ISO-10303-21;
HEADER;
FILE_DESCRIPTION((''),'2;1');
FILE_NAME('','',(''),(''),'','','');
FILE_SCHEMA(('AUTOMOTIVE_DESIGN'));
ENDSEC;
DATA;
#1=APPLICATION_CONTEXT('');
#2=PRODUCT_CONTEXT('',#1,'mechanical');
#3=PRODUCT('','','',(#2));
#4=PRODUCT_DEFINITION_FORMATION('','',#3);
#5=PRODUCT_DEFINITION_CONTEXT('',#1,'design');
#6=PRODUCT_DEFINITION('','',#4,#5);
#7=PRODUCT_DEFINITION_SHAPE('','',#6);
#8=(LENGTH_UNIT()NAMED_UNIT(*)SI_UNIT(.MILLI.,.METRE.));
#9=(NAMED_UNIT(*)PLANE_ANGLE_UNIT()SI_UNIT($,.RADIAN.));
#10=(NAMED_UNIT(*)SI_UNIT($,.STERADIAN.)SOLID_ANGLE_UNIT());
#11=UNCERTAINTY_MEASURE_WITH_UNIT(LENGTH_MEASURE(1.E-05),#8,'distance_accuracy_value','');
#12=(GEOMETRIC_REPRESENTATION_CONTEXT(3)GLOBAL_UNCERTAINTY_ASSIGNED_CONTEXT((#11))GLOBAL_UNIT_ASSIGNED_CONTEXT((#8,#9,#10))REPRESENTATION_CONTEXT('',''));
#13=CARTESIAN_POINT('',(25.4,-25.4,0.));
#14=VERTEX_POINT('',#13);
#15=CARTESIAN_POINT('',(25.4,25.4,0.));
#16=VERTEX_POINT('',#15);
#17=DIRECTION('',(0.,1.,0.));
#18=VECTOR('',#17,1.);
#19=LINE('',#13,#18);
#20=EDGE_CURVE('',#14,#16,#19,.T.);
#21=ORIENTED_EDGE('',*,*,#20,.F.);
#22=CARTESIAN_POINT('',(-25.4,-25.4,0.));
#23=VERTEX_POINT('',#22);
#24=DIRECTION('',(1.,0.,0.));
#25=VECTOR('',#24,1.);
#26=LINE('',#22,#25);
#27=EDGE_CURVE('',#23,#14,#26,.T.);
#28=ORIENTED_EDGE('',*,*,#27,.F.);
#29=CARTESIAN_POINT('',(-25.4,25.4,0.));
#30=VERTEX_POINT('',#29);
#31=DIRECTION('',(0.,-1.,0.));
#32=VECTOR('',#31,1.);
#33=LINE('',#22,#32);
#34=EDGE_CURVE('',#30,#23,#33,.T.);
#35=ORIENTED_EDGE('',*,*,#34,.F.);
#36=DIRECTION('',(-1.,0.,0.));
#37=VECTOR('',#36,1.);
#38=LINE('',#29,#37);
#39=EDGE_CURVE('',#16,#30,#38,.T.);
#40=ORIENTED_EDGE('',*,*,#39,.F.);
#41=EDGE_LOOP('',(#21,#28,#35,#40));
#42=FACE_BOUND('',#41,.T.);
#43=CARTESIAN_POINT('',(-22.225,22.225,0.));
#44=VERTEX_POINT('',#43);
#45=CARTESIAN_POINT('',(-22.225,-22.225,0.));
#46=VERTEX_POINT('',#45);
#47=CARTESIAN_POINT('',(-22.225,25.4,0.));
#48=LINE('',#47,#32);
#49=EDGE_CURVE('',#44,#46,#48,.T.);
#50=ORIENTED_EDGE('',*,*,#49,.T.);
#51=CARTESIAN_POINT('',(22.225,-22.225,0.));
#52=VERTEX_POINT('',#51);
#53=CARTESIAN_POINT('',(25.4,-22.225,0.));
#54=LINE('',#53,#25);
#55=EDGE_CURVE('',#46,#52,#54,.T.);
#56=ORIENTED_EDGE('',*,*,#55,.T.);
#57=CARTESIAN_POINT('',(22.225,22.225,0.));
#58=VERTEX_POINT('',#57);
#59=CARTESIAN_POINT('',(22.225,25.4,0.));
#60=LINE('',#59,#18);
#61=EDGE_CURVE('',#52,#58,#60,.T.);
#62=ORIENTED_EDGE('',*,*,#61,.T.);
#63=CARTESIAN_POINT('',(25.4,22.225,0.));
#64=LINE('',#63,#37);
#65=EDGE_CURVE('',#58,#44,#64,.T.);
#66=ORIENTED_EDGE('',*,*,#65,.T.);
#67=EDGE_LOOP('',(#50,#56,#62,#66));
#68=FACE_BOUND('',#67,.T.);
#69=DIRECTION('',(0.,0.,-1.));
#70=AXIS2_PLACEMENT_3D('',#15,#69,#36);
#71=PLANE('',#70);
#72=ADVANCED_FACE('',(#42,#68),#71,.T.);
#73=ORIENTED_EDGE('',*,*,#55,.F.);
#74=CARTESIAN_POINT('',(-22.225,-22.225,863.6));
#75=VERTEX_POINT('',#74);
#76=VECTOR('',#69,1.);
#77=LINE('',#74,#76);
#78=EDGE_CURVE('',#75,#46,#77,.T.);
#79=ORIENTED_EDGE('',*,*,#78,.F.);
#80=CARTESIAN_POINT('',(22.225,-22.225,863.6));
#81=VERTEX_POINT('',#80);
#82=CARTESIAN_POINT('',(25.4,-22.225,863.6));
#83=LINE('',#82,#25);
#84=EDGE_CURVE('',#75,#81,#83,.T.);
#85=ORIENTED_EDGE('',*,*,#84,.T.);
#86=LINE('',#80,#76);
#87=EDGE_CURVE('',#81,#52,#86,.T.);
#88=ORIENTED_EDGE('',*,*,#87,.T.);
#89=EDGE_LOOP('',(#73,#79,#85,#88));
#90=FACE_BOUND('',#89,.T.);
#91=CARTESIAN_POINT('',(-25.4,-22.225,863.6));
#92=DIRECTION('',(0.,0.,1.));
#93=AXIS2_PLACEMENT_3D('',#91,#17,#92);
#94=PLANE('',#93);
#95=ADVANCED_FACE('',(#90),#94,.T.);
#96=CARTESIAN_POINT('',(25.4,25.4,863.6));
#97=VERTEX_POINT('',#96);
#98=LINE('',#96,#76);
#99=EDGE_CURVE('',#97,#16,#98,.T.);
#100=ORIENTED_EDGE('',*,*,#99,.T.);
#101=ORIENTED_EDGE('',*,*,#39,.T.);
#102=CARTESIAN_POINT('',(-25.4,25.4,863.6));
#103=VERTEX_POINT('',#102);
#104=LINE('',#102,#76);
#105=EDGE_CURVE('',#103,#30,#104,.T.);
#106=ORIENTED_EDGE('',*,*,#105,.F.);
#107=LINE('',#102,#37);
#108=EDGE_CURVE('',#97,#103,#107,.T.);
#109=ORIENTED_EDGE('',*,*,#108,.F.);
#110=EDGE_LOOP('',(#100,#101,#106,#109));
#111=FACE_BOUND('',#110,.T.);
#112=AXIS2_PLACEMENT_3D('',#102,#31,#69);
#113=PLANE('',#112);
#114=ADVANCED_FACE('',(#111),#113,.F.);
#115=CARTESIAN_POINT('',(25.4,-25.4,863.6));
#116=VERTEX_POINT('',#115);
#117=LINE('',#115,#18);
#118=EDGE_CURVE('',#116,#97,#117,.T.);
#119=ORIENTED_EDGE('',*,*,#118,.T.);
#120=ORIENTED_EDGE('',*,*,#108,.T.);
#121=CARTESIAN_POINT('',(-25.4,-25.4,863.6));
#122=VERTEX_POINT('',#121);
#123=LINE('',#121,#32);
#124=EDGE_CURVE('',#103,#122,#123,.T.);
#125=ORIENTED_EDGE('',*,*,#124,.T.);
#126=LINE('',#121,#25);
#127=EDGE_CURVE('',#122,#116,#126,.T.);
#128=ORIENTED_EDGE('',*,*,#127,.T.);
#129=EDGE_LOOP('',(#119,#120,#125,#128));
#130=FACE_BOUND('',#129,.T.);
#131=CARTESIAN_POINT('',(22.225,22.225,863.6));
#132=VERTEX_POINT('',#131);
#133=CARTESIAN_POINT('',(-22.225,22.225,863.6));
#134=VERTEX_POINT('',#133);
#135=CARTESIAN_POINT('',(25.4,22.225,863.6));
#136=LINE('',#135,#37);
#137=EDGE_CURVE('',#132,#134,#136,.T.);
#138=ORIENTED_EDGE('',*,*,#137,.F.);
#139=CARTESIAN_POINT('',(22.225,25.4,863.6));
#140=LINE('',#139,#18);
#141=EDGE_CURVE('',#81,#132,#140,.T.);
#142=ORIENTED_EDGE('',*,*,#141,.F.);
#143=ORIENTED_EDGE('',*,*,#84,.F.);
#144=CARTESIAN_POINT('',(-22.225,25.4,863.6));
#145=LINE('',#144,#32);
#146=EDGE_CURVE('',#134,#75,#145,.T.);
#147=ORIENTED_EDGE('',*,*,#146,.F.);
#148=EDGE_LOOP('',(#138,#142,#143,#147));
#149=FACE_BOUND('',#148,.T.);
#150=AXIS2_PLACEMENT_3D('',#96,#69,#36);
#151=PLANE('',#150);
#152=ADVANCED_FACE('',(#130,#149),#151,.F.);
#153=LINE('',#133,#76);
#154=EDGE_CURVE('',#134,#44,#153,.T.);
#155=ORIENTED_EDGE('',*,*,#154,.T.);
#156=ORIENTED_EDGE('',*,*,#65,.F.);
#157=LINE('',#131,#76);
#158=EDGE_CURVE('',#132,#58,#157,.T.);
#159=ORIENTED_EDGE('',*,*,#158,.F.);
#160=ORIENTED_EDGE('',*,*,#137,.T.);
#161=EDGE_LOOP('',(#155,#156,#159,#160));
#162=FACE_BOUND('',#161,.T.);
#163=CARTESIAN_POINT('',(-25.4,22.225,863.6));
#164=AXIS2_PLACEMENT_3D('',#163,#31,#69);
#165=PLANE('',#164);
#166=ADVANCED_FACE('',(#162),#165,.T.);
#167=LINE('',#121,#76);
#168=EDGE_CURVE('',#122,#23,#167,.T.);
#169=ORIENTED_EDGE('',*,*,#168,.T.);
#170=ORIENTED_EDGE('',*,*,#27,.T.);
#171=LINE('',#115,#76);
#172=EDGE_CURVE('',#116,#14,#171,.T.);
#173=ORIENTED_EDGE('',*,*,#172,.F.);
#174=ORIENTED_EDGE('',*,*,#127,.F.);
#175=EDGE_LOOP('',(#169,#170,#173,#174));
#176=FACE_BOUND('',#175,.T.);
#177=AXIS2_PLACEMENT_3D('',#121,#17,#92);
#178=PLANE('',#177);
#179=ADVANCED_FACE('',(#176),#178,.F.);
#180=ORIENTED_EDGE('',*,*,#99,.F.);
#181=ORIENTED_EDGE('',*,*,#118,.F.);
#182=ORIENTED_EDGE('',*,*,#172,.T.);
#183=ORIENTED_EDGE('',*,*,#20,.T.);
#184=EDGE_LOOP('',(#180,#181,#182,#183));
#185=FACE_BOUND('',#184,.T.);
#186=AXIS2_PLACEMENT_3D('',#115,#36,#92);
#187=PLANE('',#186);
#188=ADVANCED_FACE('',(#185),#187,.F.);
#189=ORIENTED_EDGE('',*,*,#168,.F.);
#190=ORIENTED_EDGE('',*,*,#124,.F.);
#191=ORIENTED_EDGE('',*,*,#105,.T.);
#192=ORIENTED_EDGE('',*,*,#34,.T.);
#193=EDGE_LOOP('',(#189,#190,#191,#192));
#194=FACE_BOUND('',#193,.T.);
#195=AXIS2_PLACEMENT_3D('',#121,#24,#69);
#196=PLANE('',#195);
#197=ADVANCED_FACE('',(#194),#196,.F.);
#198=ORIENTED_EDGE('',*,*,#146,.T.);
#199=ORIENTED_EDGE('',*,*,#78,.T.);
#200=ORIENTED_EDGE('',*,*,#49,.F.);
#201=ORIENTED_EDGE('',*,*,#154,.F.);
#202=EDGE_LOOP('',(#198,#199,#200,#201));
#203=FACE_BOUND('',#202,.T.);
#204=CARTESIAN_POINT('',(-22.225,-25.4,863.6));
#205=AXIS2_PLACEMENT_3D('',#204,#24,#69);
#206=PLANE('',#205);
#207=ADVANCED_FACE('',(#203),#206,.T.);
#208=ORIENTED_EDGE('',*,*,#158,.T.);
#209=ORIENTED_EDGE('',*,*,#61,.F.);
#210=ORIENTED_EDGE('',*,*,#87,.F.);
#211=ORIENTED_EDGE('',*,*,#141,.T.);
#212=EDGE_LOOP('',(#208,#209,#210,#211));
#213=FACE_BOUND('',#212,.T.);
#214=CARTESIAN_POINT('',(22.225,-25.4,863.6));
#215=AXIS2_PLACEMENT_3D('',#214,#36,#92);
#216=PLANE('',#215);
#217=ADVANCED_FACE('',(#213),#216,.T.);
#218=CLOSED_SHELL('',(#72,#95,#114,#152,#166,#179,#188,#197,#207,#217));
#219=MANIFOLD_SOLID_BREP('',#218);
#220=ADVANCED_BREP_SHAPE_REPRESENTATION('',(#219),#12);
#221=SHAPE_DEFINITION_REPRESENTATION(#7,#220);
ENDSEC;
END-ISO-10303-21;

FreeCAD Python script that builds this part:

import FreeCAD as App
import Part
import Sketcher
from FreeCAD import Vector
Q = App.Units.Quantity


def faces_at(feature, points):
    """Names of the faces that lie closest to the given points."""
    faces = feature.Shape.Faces
    near = lambda p: min(range(len(faces)), key=lambda i: faces[i].distToShape(Part.Vertex(*p))[0])
    return sorted({f"Face{near(p) + 1}" for p in points})


def add_polygon(sketch, points):
    """Adds a closed chain of lines whose ends are joined by coincident constraints."""
    first, n = sketch.GeometryCount, len(points)
    for a, b in zip(points, points[1:] + points[:1]):
        sketch.addGeometry(Part.LineSegment(App.Vector(*a, 0), App.Vector(*b, 0)), False)
    for i in range(n):
        sketch.addConstraint(Sketcher.Constraint("Coincident", first + i, 2, first + (i + 1) % n, 1))

doc = App.newDocument("Part")
body = doc.addObject("PartDesign::Body", "Body")

sketch1 = body.newObject("Sketcher::SketchObject", "Sketch")
sketch1.AttachmentSupport = (doc.getObject("XY_Plane"), [""])
sketch1.MapMode = "FlatFace"
add_polygon(sketch1, [(-25.4, 25.4), (-25.4, -25.4), (25.4, -25.4), (25.4, 25.4)])
sketch1.addConstraint(Sketcher.Constraint("Vertical", 0))
sketch1.addConstraint(Sketcher.Constraint("Horizontal", 1))
sketch1.addConstraint(Sketcher.Constraint("Vertical", 2))
sketch1.addConstraint(Sketcher.Constraint("Horizontal", 3))
sketch1.addConstraint(Sketcher.Constraint("Symmetric", 0, 2, 2, 2, -1, 1))
sketch1.addConstraint(Sketcher.Constraint("Equal", 3, 0))
sketch1.addConstraint(Sketcher.Constraint("DistanceX", 1, 1, 1, 2, Q("2 in")))
pad1 = body.newObject("PartDesign::Pad", "Pad")
pad1.Profile = sketch1
pad1.Length = Q("34 in")
doc.recompute()

thickness = body.newObject("PartDesign::Thickness", "Thickness")
thickness.Base = (pad1, faces_at(pad1, [(0, 0, 863.6), (0, 0, 0)]))
thickness.Value = Q("0.125 in")
thickness.Reversed = True
thickness.Join = "Intersection"

doc.recompute()
